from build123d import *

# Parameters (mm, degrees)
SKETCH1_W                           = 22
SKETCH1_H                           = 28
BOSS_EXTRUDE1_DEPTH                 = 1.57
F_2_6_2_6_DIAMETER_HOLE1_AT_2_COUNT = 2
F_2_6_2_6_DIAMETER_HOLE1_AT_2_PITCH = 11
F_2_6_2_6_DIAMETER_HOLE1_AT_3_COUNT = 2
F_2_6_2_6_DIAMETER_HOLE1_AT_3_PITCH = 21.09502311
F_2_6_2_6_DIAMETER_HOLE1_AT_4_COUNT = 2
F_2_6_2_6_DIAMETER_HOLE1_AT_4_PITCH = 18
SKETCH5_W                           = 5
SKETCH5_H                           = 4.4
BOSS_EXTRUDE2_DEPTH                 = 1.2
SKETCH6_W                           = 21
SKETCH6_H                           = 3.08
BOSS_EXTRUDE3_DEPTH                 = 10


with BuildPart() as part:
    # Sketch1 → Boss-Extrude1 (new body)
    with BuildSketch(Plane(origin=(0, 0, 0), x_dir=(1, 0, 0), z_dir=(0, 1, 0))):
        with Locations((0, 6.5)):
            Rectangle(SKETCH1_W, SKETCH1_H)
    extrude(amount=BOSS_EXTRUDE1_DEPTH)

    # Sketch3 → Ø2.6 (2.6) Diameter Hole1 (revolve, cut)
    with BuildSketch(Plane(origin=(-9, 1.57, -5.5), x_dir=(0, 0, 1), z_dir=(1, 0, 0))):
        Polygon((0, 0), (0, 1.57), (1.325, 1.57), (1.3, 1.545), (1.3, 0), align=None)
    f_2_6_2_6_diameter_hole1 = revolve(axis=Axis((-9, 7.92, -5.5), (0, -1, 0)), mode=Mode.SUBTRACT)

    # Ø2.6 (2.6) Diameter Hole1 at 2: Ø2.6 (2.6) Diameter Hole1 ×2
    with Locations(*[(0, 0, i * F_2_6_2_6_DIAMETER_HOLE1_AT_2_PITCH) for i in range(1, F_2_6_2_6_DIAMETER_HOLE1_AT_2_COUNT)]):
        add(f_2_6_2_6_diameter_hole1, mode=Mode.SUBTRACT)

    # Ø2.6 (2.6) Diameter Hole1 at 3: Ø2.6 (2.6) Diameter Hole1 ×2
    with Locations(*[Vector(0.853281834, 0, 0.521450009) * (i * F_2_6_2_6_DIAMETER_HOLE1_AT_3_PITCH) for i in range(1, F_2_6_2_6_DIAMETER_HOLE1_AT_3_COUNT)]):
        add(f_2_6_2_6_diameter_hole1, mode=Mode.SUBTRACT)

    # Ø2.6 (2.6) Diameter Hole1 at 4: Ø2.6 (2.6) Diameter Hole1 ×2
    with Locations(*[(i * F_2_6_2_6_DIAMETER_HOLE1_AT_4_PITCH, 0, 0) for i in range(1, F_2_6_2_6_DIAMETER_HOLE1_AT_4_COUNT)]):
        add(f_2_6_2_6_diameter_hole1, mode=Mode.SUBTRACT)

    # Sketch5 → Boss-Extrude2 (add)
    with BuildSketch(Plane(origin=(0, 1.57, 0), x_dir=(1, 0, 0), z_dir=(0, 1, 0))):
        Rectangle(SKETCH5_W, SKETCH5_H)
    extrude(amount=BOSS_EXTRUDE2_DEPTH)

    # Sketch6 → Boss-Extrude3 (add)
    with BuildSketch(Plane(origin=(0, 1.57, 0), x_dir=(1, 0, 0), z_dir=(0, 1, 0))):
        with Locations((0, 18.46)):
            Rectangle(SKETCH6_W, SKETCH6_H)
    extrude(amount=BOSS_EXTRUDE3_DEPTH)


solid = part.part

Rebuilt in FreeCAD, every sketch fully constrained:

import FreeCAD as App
import Part
import Sketcher

V = App.Vector
Q = App.Units.Quantity

doc = App.newDocument("Part")
params = doc.addObject("Spreadsheet::Sheet", "Params")
for row, (alias, value) in enumerate([
    ("sketch1_width", "22 mm"),
    ("sketch1_height", "28 mm"),
    ("pad1_length", "1.57 mm"),
    ("sketch2_height", "1.3 mm"),
    ("sketch2_width", "1.57 mm"),
    ("groove_angle", "360 deg"),
    ("linearpattern_pitch", "11 mm"),
    ("linearpattern2_pitch", "21.095023 mm"),
    ("linearpattern3_pitch", "18 mm"),
    ("sketch3_width", "5 mm"),
    ("sketch3_height", "4.4 mm"),
    ("pad2_length", "1.2 mm"),
    ("sketch4_width", "21 mm"),
    ("sketch4_height", "3.08 mm"),
    ("pad3_length", "10 mm"),
], start=1):
    params.set(f"A{row}", alias)
    params.set(f"B{row}", "=" + value)
    params.setAlias(f"B{row}", alias)

body = doc.addObject("PartDesign::Body", "Body")

sketch1 = doc.addObject("Sketcher::SketchObject", "Sketch")
body.addObject(sketch1)
sketch1.AttachmentSupport = (doc.XZ_Plane, [""])
sketch1.MapMode = "FlatFace"
sketch1.addGeometry([
    Part.LineSegment(V(-11, -20, 0), V(-11, 8, 0)),
    Part.LineSegment(V(-11, 8, 0), V(11, 8, 0)),
    Part.LineSegment(V(11, 8, 0), V(11, -20, 0)),
    Part.LineSegment(V(11, -20, 0), V(-11, -20, 0)),
], False)
sketch1.addConstraint([
    Sketcher.Constraint("Coincident", 0, 2, 1, 1),
    Sketcher.Constraint("Coincident", 1, 2, 2, 1),
    Sketcher.Constraint("Coincident", 2, 2, 3, 1),
    Sketcher.Constraint("Coincident", 3, 2, 0, 1),
    Sketcher.Constraint("Vertical", 0),
    Sketcher.Constraint("Horizontal", 1),
    Sketcher.Constraint("Vertical", 2),
    Sketcher.Constraint("Horizontal", 3),
    Sketcher.Constraint("DistanceX", 1, 1, 1, 2, 22.0),
    Sketcher.Constraint("DistanceY", 0, 1, 0, 2, 28.0),
    Sketcher.Constraint("DistanceX", 0, 2, -1, 1, 11.0),
    Sketcher.Constraint("DistanceY", -1, 1, 0, 2, 7.5),
])
sketch1.setExpression("Constraints[8]", "Params.sketch1_width")
sketch1.setExpression("Constraints[9]", "Params.sketch1_height")
pad1 = doc.addObject("PartDesign::Pad", "Pad")
body.addObject(pad1)
pad1.Profile = sketch1
pad1.setExpression("Length", "Params.pad1_length")
pad1.Reversed = True

sketch2 = doc.addObject("Sketcher::SketchObject", "Sketch001")
body.addObject(sketch2)
sketch2.AttachmentSupport = (doc.YZ_Plane, [""])
sketch2.MapMode = "FlatFace"
sketch2.AttachmentOffset = App.Placement(V(0, 0, -9), App.Rotation())
sketch2.addGeometry([
    Part.LineSegment(V(0, -5.5, 0), V(1.57, -5.5, 0)),
    Part.LineSegment(V(1.57, -5.5, 0), V(1.57, -4.2, 0)),
    Part.LineSegment(V(1.57, -4.2, 0), V(0.025, -4.2, 0)),
    Part.LineSegment(V(0.025, -4.2, 0), V(0, -4.175, 0)),
    Part.LineSegment(V(0, -4.175, 0), V(0, -5.5, 0)),
], False)
sketch2.addGeometry(Part.LineSegment(V(1.57, -5.5, 0), V(0, -5.5, 0)), True)
sketch2.addConstraint([
    Sketcher.Constraint("Coincident", 0, 2, 1, 1),
    Sketcher.Constraint("Coincident", 1, 2, 2, 1),
    Sketcher.Constraint("Coincident", 2, 2, 3, 1),
    Sketcher.Constraint("Coincident", 3, 2, 4, 1),
    Sketcher.Constraint("Coincident", 4, 2, 0, 1),
    Sketcher.Constraint("Horizontal", 0),
    Sketcher.Constraint("Vertical", 1),
    Sketcher.Constraint("Horizontal", 2),
    Sketcher.Constraint("Vertical", 4),
    Sketcher.Constraint("Horizontal", 5),
    Sketcher.Constraint("Coincident", 5, 1, 0, 2),
    Sketcher.Constraint("PointOnObject", 3, 2, -2),
    Sketcher.Constraint("PointOnObject", 5, 2, -2),
    Sketcher.Constraint("Angle", 3, Q("135 deg")),
    Sketcher.Constraint("DistanceY", 1, 1, 1, 2, 1.3),
    Sketcher.Constraint("DistanceX", 0, 1, 0, 2, 1.57),
    Sketcher.Constraint("DistanceY", 0, 2, -1, 1, 5.5),
    Sketcher.Constraint("DistanceX", 2, 2, 2, 1, 1.545),
])
sketch2.setExpression("Constraints[14]", "Params.sketch2_height")
sketch2.setExpression("Constraints[15]", "Params.sketch2_width")
groove = doc.addObject("PartDesign::Groove", "Groove")
body.addObject(groove)
groove.Profile = sketch2
groove.ReferenceAxis = (sketch2, ["Axis0"])
groove.setExpression("Angle", "Params.groove_angle")
doc.recompute()

linearpattern = doc.addObject("PartDesign::LinearPattern", "LinearPattern")
body.addObject(linearpattern)
linearpattern.Originals = [groove]
linearpattern.Direction = (doc.Z_Axis, [""])
linearpattern.Mode = "offset"
linearpattern.setExpression("Offset", "Params.linearpattern_pitch")
linearpattern.Occurrences = 2
body.Tip = linearpattern
doc.recompute()

datumline = doc.addObject("PartDesign::Line", "DatumLine")
body.addObject(datumline)
datumline.Placement = App.Placement(V(0, 0, 0), App.Rotation(V(0, 0, 1), V(0.853281834, 0, 0.521450009)))
linearpattern2 = doc.addObject("PartDesign::LinearPattern", "LinearPattern001")
body.addObject(linearpattern2)
linearpattern2.Originals = [groove]
linearpattern2.Direction = (datumline, [""])
linearpattern2.Mode = "offset"
linearpattern2.setExpression("Offset", "Params.linearpattern2_pitch")
linearpattern2.Occurrences = 2
body.Tip = linearpattern2
doc.recompute()

linearpattern3 = doc.addObject("PartDesign::LinearPattern", "LinearPattern002")
body.addObject(linearpattern3)
linearpattern3.Originals = [groove]
linearpattern3.Direction = (doc.X_Axis, [""])
linearpattern3.Mode = "offset"
linearpattern3.setExpression("Offset", "Params.linearpattern3_pitch")
linearpattern3.Occurrences = 2
body.Tip = linearpattern3

sketch3 = doc.addObject("Sketcher::SketchObject", "Sketch002")
body.addObject(sketch3)
sketch3.AttachmentSupport = (doc.XZ_Plane, [""])
sketch3.MapMode = "FlatFace"
sketch3.AttachmentOffset = App.Placement(V(0, 0, -1.57), App.Rotation())
sketch3.addGeometry([
    Part.LineSegment(V(-2.5, -2.2, 0), V(-2.5, 2.2, 0)),
    Part.LineSegment(V(-2.5, 2.2, 0), V(2.5, 2.2, 0)),
    Part.LineSegment(V(2.5, 2.2, 0), V(2.5, -2.2, 0)),
    Part.LineSegment(V(2.5, -2.2, 0), V(-2.5, -2.2, 0)),
], False)
sketch3.addConstraint([
    Sketcher.Constraint("Coincident", 0, 2, 1, 1),
    Sketcher.Constraint("Coincident", 1, 2, 2, 1),
    Sketcher.Constraint("Coincident", 2, 2, 3, 1),
    Sketcher.Constraint("Coincident", 3, 2, 0, 1),
    Sketcher.Constraint("Vertical", 0),
    Sketcher.Constraint("Horizontal", 1),
    Sketcher.Constraint("Vertical", 2),
    Sketcher.Constraint("Horizontal", 3),
    Sketcher.Constraint("Symmetric", 0, 2, 2, 2, -1, 1),
    Sketcher.Constraint("DistanceX", 1, 1, 1, 2, 5.0),
    Sketcher.Constraint("DistanceY", 0, 1, 0, 2, 4.4),
])
sketch3.setExpression("Constraints[9]", "Params.sketch3_width")
sketch3.setExpression("Constraints[10]", "Params.sketch3_height")
pad2 = doc.addObject("PartDesign::Pad", "Pad001")
body.addObject(pad2)
pad2.Profile = sketch3
pad2.setExpression("Length", "Params.pad2_length")
pad2.Reversed = True

sketch4 = doc.addObject("Sketcher::SketchObject", "Sketch003")
body.addObject(sketch4)
sketch4.AttachmentSupport = (doc.XZ_Plane, [""])
sketch4.MapMode = "FlatFace"
sketch4.AttachmentOffset = App.Placement(V(0, 0, -1.57), App.Rotation())
sketch4.addGeometry([
    Part.LineSegment(V(-10.5, -20, 0), V(-10.5, -16.9, 0)),
    Part.LineSegment(V(-10.5, -16.9, 0), V(10.5, -16.9, 0)),
    Part.LineSegment(V(10.5, -16.9, 0), V(10.5, -20, 0)),
    Part.LineSegment(V(10.5, -20, 0), V(-10.5, -20, 0)),
], False)
sketch4.addConstraint([
    Sketcher.Constraint("Coincident", 0, 2, 1, 1),
    Sketcher.Constraint("Coincident", 1, 2, 2, 1),
    Sketcher.Constraint("Coincident", 2, 2, 3, 1),
    Sketcher.Constraint("Coincident", 3, 2, 0, 1),
    Sketcher.Constraint("Vertical", 0),
    Sketcher.Constraint("Horizontal", 1),
    Sketcher.Constraint("Vertical", 2),
    Sketcher.Constraint("Horizontal", 3),
    Sketcher.Constraint("DistanceX", 1, 1, 1, 2, 21.0),
    Sketcher.Constraint("DistanceY", 2, 2, -1, 1, 20.0),
    Sketcher.Constraint("DistanceY", 0, 1, 0, 2, 3.08),
    Sketcher.Constraint("DistanceX", 0, 2, -1, 1, 10.5),
])
sketch4.setExpression("Constraints[8]", "Params.sketch4_width")
sketch4.setExpression("Constraints[10]", "Params.sketch4_height")
pad3 = doc.addObject("PartDesign::Pad", "Pad002")
body.addObject(pad3)
pad3.Profile = sketch4
pad3.setExpression("Length", "Params.pad3_length")
pad3.Reversed = True

doc.recompute()
